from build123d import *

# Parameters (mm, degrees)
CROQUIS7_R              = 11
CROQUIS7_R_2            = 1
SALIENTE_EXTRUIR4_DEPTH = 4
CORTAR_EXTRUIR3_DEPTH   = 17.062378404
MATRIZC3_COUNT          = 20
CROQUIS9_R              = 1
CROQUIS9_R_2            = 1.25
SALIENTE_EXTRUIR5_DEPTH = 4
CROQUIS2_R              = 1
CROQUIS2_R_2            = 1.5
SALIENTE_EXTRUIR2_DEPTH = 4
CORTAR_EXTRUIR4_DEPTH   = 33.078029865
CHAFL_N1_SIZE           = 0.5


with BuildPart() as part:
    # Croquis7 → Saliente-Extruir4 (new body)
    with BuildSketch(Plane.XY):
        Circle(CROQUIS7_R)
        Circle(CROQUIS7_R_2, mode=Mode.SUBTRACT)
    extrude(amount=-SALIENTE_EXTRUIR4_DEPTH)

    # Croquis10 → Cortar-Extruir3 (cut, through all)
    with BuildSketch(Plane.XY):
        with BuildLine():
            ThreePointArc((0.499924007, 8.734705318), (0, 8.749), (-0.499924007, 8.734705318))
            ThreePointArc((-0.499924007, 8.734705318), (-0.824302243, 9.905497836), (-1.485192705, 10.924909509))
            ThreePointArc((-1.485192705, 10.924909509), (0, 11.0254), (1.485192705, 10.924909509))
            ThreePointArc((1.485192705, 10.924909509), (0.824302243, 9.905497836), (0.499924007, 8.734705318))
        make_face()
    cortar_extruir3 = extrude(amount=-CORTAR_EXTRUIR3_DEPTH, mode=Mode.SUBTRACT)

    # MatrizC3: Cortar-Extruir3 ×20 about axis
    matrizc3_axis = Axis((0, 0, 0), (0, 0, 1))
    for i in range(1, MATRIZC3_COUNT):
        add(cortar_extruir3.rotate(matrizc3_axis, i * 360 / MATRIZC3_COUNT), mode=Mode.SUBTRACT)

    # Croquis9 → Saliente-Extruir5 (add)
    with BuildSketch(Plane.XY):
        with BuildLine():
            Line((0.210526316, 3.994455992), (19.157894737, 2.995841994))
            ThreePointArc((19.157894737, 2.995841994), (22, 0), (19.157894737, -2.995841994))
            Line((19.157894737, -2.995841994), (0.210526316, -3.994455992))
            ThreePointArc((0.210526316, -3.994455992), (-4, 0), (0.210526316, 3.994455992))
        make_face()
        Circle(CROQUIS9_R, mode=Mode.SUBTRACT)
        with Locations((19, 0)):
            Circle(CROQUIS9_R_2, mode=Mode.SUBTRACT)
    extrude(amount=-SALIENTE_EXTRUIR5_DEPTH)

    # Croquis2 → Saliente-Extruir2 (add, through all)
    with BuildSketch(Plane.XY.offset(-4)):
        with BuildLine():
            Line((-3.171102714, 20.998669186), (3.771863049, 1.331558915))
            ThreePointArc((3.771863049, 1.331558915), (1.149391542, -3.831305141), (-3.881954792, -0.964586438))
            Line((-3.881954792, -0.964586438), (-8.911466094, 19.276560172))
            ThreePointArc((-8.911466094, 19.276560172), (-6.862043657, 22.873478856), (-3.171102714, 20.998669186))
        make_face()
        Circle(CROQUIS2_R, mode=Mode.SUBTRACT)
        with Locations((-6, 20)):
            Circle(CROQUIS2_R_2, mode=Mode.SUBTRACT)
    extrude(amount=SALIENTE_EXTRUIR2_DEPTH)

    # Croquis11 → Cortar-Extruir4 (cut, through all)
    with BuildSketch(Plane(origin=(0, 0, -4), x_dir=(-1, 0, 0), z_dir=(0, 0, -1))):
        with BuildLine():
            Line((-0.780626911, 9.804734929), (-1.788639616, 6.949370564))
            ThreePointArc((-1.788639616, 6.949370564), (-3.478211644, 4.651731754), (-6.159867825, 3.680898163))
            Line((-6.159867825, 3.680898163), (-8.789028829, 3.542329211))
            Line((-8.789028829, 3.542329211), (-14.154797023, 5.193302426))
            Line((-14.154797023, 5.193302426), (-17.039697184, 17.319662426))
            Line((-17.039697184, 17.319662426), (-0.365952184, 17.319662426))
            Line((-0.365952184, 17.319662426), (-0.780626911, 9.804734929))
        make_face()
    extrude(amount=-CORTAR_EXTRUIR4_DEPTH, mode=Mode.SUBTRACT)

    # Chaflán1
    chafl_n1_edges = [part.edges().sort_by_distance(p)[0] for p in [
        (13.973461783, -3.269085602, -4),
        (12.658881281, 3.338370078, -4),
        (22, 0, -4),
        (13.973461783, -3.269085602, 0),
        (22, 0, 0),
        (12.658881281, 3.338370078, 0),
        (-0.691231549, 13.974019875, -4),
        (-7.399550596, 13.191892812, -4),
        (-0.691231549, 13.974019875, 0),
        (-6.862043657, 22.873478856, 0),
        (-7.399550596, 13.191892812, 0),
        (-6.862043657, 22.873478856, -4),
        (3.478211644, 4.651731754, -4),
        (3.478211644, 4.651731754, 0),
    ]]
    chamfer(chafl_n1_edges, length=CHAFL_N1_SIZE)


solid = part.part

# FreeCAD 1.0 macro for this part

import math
import FreeCAD as App
import Part
import Sketcher


def edges_at(feature, points):
    """Names of the edges that pass closest to the given points."""
    edges = feature.Shape.Edges
    near = lambda p: min(range(len(edges)), key=lambda i: edges[i].distToShape(Part.Vertex(*p))[0])
    return sorted({f"Edge{near(p) + 1}" for p in points})

doc = App.newDocument("Part")
params = doc.addObject("Spreadsheet::Sheet", "Params")
for row, (alias, value) in enumerate([
    ("sketch1_diameter", "22 mm"),
    ("sketch1_diameter2", "2 mm"),
    ("pad1_length", "4 mm"),
    ("sketch2_radius", "4 mm"),
    ("sketch3_diameter", "2 mm"),
    ("sketch3_radius", "4 mm"),
    ("sketch3_radius2", "3 mm"),
    ("sketch3_diameter2", "2.5 mm"),
    ("pad2_length", "4 mm"),
    ("sketch4_diameter", "2 mm"),
    ("sketch4_diameter2", "3 mm"),
    ("sketch4_radius", "3 mm"),
    ("sketch4_radius2", "4 mm"),
    ("pad3_length", "4 mm"),
    ("chamfer_size", "0.5 mm"),
], start=1):
    params.set(f"A{row}", alias)
    params.set(f"B{row}", "=" + value)
    params.setAlias(f"B{row}", alias)

body = doc.addObject("PartDesign::Body", "Body")

sketch1 = doc.addObject("Sketcher::SketchObject", "Sketch")
body.addObject(sketch1)
sketch1.AttachmentSupport = (doc.XY_Plane, [""])
sketch1.MapMode = "FlatFace"
sketch1.addGeometry([
    Part.Circle(App.Vector(0, 0, 0), App.Vector(0, 0, 1), 11),
    Part.Circle(App.Vector(0, 0, 0), App.Vector(0, 0, 1), 1),
], False)
sketch1.addConstraint([
    Sketcher.Constraint("Coincident", 0, 3, -1, 1),
    Sketcher.Constraint("Coincident", 1, 3, -1, 1),
    Sketcher.Constraint("Diameter", 0, 22.0),
    Sketcher.Constraint("Diameter", 1, 2.0),
])
sketch1.setExpression("Constraints[2]", "Params.sketch1_diameter")
sketch1.setExpression("Constraints[3]", "Params.sketch1_diameter2")
pad1 = doc.addObject("PartDesign::Pad", "Pad")
body.addObject(pad1)
pad1.Profile = sketch1
pad1.setExpression("Length", "Params.pad1_length")
pad1.Reversed = True

sketch2 = doc.addObject("Sketcher::SketchObject", "Sketch001")
body.addObject(sketch2)
sketch2.AttachmentSupport = (doc.XY_Plane, [""])
sketch2.MapMode = "FlatFace"
sketch2.addGeometry([
    Part.ArcOfCircle(Part.Circle(App.Vector(0, 0, 0), App.Vector(0, 0, 1), 8.749), math.radians(86.724295), math.radians(93.275705)),
    Part.ArcOfCircle(Part.Circle(App.Vector(4.47219, 8.264487, 0), App.Vector(0, 0, 1), 4), math.radians(138.309566), math.radians(173.249005)),
    Part.ArcOfCircle(Part.Circle(App.Vector(0, 0, 0), App.Vector(0, 0, 1), 11.0254), math.radians(82.258353), math.radians(97.741647)),
    Part.ArcOfCircle(Part.Circle(App.Vector(-4.47219, 8.264487, 0), App.Vector(0, 0, 1), 4), math.radians(6.750995), math.radians(41.690434)),
], False)
sketch2.addConstraint([
    Sketcher.Constraint("Coincident", 0, 1, 1, 2),
    Sketcher.Constraint("Coincident", 1, 1, 2, 1),
    Sketcher.Constraint("Coincident", 2, 2, 3, 2),
    Sketcher.Constraint("Coincident", 3, 1, 0, 2),
    Sketcher.Constraint("Coincident", 0, 3, -1, 1),
    Sketcher.Constraint("Coincident", 2, 3, -1, 1),
    Sketcher.Constraint("Equal", 1, 3),
    Sketcher.Constraint("Symmetric", 1, 3, 3, 3, -2),
    Sketcher.Constraint("Radius", 1, 4.0),
    Sketcher.Constraint("Radius", 0, 8.749),
    Sketcher.Constraint("Radius", 2, 11.0254),
    Sketcher.Constraint("DistanceX", -1, 1, 1, 3, 4.47219),
    Sketcher.Constraint("DistanceY", -1, 1, 1, 1, 10.92491),
])
sketch2.setExpression("Constraints[8]", "Params.sketch2_radius")
pocket1 = doc.addObject("PartDesign::Pocket", "Pocket")
body.addObject(pocket1)
pocket1.Profile = sketch2
pocket1.Type = "ThroughAll"
doc.recompute()

polarpattern = doc.addObject("PartDesign::PolarPattern", "PolarPattern")
body.addObject(polarpattern)
polarpattern.Originals = [pocket1]
polarpattern.Axis = (doc.Z_Axis, [""])
polarpattern.Angle = 360
polarpattern.Occurrences = 20
body.Tip = polarpattern

sketch3 = doc.addObject("Sketcher::SketchObject", "Sketch002")
body.addObject(sketch3)
sketch3.AttachmentSupport = (doc.XY_Plane, [""])
sketch3.MapMode = "FlatFace"
sketch3.addGeometry([
    Part.LineSegment(App.Vector(19.157895, 2.995842, 0), App.Vector(0.210526, 3.994456, 0)),
    Part.ArcOfCircle(Part.Circle(App.Vector(0, 0, 0), App.Vector(0, 0, 1), 4), math.radians(86.983039), math.radians(273.016961)),
    Part.LineSegment(App.Vector(0.210526, -3.994456, 0), App.Vector(19.157895, -2.995842, 0)),
    Part.ArcOfCircle(Part.Circle(App.Vector(19, 0, 0), App.Vector(0, 0, 1), 3), math.radians(-86.983039), math.radians(86.983039)),
    Part.Circle(App.Vector(19, 0, 0), App.Vector(0, 0, 1), 1.25),
    Part.Circle(App.Vector(0, 0, 0), App.Vector(0, 0, 1), 1),
], False)
sketch3.addConstraint([
    Sketcher.Constraint("Tangent", 0, 2, 1, 1),
    Sketcher.Constraint("Tangent", 1, 2, 2, 1),
    Sketcher.Constraint("Tangent", 2, 2, 3, 1),
    Sketcher.Constraint("Tangent", 3, 2, 0, 1),
    Sketcher.Constraint("Coincident", 1, 3, -1, 1),
    Sketcher.Constraint("Coincident", 5, 3, -1, 1),
    Sketcher.Constraint("Coincident", 4, 3, 3, 3),
    Sketcher.Constraint("PointOnObject", 3, 3, -1),
    Sketcher.Constraint("Diameter", 5, 2.0),
    Sketcher.Constraint("Radius", 1, 4.0),
    Sketcher.Constraint("Radius", 3, 3.0),
    Sketcher.Constraint("Diameter", 4, 2.5),
    Sketcher.Constraint("DistanceX", -1, 1, 3, 3, 19.0),
])
sketch3.setExpression("Constraints[8]", "Params.sketch3_diameter")
sketch3.setExpression("Constraints[9]", "Params.sketch3_radius")
sketch3.setExpression("Constraints[10]", "Params.sketch3_radius2")
sketch3.setExpression("Constraints[11]", "Params.sketch3_diameter2")
pad2 = doc.addObject("PartDesign::Pad", "Pad001")
body.addObject(pad2)
pad2.Profile = sketch3
pad2.setExpression("Length", "Params.pad2_length")
pad2.Reversed = True

sketch4 = doc.addObject("Sketcher::SketchObject", "Sketch003")
body.addObject(sketch4)
sketch4.AttachmentSupport = (doc.XY_Plane, [""])
sketch4.MapMode = "FlatFace"
sketch4.AttachmentOffset = App.Placement(App.Vector(0, 0, -4), App.Rotation())
sketch4.addGeometry([
    Part.LineSegment(App.Vector(3.771863, 1.331559, 0), App.Vector(-3.171103, 20.998669, 0)),
    Part.ArcOfCircle(Part.Circle(App.Vector(-6, 20, 0), App.Vector(0, 0, 1), 3), math.radians(19.444264), math.radians(193.954224)),
    Part.LineSegment(App.Vector(-8.911466, 19.27656, 0), App.Vector(-3.881955, -0.964586, 0)),
    Part.ArcOfCircle(Part.Circle(App.Vector(0, 0, 0), App.Vector(0, 0, 1), 4), math.radians(-166.045776), math.radians(19.444264)),
    Part.Circle(App.Vector(0, 0, 0), App.Vector(0, 0, 1), 1),
    Part.Circle(App.Vector(-6, 20, 0), App.Vector(0, 0, 1), 1.5),
], False)
sketch4.addConstraint([
    Sketcher.Constraint("Tangent", 0, 2, 1, 1),
    Sketcher.Constraint("Tangent", 1, 2, 2, 1),
    Sketcher.Constraint("Tangent", 2, 2, 3, 1),
    Sketcher.Constraint("Tangent", 3, 2, 0, 1),
    Sketcher.Constraint("Coincident", 3, 3, -1, 1),
    Sketcher.Constraint("Coincident", 4, 3, -1, 1),
    Sketcher.Constraint("Coincident", 5, 3, 1, 3),
    Sketcher.Constraint("Diameter", 4, 2.0),
    Sketcher.Constraint("Diameter", 5, 3.0),
    Sketcher.Constraint("Radius", 1, 3.0),
    Sketcher.Constraint("Radius", 3, 4.0),
    Sketcher.Constraint("DistanceX", 1, 3, -1, 1, 6.0),
    Sketcher.Constraint("DistanceY", -1, 1, 1, 3, 20.0),
])
sketch4.setExpression("Constraints[7]", "Params.sketch4_diameter")
sketch4.setExpression("Constraints[8]", "Params.sketch4_diameter2")
sketch4.setExpression("Constraints[9]", "Params.sketch4_radius")
sketch4.setExpression("Constraints[10]", "Params.sketch4_radius2")
pad3 = doc.addObject("PartDesign::Pad", "Pad002")
body.addObject(pad3)
pad3.Profile = sketch4
pad3.setExpression("Length", "Params.pad3_length")

sketch5 = doc.addObject("Sketcher::SketchObject", "Sketch004")
body.addObject(sketch5)
sketch5.AttachmentSupport = (doc.XY_Plane, [""])
sketch5.MapMode = "FlatFace"
sketch5.AttachmentOffset = App.Placement(App.Vector(0, 0, -4), App.Rotation())
sketch5.addGeometry([
    Part.LineSegment(App.Vector(1.78864, 6.949371, 0), App.Vector(0.780627, 9.804735, 0)),
    Part.LineSegment(App.Vector(0.780627, 9.804735, 0), App.Vector(0.365952, 17.319662, 0)),
    Part.LineSegment(App.Vector(0.365952, 17.319662, 0), App.Vector(17.039697, 17.319662, 0)),
    Part.LineSegment(App.Vector(17.039697, 17.319662, 0), App.Vector(14.154797, 5.193302, 0)),
    Part.LineSegment(App.Vector(14.154797, 5.193302, 0), App.Vector(8.789029, 3.542329, 0)),
    Part.LineSegment(App.Vector(8.789029, 3.542329, 0), App.Vector(6.159868, 3.680898, 0)),
    Part.ArcOfCircle(Part.Circle(App.Vector(6.41827, 8.583742, 0), App.Vector(0, 0, 1), 4.909649), math.radians(-160.555736), math.radians(-93.016961)),
], False)
sketch5.addConstraint([
    Sketcher.Constraint("Coincident", 0, 2, 1, 1),
    Sketcher.Constraint("Coincident", 1, 2, 2, 1),
    Sketcher.Constraint("Coincident", 2, 2, 3, 1),
    Sketcher.Constraint("Coincident", 3, 2, 4, 1),
    Sketcher.Constraint("Coincident", 4, 2, 5, 1),
    Sketcher.Constraint("Tangent", 5, 2, 6, 2),
    Sketcher.Constraint("Tangent", 6, 1, 0, 1),
    Sketcher.Constraint("Horizontal", 2),
    Sketcher.Constraint("Radius", 6, 4.909649),
    Sketcher.Constraint("Distance", 3, 12.464801),
    Sketcher.Constraint("DistanceY", -1, 1, 5, 2, 3.680898),
    Sketcher.Constraint("DistanceX", 3, 2, 2, 2, 2.8849),
    Sketcher.Constraint("DistanceX", 0, 2, 4, 2, 8.008402),
    Sketcher.Constraint("Distance", 1, 7.52636),
    Sketcher.Constraint("Distance", 5, 2.63281),
    Sketcher.Constraint("DistanceX", 2, 1, 2, 2, 16.673745),
    Sketcher.Constraint("DistanceX", -1, 1, 6, 3, 6.41827),
    Sketcher.Constraint("DistanceX", -1, 1, 4, 2, 8.789029),
    Sketcher.Constraint("DistanceX", -1, 1, 6, 1, 1.78864),
    Sketcher.Constraint("DistanceX", 1, 2, 6, 3, 6.052318),
])
pocket2 = doc.addObject("PartDesign::Pocket", "Pocket001")
body.addObject(pocket2)
pocket2.Profile = sketch5
pocket2.Type = "ThroughAll"
pocket2.Reversed = True
doc.recompute()

chamfer = doc.addObject("PartDesign::Chamfer", "Chamfer")
body.addObject(chamfer)
chamfer.Base = (pocket2, edges_at(pocket2, [
    (13.973, -3.269, -4),
    (13.973, 3.269, -4),
    (22, 0, -4),
    (13.973, -3.269, 0),
    (22, 0, 0),
    (13.973, 3.269, 0),
    (-1.195, 15.402, -4),
    (-7.4, 13.192, -4),
    (-1.195, 15.402, 0),
    (-6.862, 22.873, 0),
    (-7.4, 13.192, 0),
    (-6.862, 22.873, -4),
    (3.478, 4.652, -4),
    (3.478, 4.652, 0),
]))
chamfer.setExpression("Size", "Params.chamfer_size")

doc.recompute()
